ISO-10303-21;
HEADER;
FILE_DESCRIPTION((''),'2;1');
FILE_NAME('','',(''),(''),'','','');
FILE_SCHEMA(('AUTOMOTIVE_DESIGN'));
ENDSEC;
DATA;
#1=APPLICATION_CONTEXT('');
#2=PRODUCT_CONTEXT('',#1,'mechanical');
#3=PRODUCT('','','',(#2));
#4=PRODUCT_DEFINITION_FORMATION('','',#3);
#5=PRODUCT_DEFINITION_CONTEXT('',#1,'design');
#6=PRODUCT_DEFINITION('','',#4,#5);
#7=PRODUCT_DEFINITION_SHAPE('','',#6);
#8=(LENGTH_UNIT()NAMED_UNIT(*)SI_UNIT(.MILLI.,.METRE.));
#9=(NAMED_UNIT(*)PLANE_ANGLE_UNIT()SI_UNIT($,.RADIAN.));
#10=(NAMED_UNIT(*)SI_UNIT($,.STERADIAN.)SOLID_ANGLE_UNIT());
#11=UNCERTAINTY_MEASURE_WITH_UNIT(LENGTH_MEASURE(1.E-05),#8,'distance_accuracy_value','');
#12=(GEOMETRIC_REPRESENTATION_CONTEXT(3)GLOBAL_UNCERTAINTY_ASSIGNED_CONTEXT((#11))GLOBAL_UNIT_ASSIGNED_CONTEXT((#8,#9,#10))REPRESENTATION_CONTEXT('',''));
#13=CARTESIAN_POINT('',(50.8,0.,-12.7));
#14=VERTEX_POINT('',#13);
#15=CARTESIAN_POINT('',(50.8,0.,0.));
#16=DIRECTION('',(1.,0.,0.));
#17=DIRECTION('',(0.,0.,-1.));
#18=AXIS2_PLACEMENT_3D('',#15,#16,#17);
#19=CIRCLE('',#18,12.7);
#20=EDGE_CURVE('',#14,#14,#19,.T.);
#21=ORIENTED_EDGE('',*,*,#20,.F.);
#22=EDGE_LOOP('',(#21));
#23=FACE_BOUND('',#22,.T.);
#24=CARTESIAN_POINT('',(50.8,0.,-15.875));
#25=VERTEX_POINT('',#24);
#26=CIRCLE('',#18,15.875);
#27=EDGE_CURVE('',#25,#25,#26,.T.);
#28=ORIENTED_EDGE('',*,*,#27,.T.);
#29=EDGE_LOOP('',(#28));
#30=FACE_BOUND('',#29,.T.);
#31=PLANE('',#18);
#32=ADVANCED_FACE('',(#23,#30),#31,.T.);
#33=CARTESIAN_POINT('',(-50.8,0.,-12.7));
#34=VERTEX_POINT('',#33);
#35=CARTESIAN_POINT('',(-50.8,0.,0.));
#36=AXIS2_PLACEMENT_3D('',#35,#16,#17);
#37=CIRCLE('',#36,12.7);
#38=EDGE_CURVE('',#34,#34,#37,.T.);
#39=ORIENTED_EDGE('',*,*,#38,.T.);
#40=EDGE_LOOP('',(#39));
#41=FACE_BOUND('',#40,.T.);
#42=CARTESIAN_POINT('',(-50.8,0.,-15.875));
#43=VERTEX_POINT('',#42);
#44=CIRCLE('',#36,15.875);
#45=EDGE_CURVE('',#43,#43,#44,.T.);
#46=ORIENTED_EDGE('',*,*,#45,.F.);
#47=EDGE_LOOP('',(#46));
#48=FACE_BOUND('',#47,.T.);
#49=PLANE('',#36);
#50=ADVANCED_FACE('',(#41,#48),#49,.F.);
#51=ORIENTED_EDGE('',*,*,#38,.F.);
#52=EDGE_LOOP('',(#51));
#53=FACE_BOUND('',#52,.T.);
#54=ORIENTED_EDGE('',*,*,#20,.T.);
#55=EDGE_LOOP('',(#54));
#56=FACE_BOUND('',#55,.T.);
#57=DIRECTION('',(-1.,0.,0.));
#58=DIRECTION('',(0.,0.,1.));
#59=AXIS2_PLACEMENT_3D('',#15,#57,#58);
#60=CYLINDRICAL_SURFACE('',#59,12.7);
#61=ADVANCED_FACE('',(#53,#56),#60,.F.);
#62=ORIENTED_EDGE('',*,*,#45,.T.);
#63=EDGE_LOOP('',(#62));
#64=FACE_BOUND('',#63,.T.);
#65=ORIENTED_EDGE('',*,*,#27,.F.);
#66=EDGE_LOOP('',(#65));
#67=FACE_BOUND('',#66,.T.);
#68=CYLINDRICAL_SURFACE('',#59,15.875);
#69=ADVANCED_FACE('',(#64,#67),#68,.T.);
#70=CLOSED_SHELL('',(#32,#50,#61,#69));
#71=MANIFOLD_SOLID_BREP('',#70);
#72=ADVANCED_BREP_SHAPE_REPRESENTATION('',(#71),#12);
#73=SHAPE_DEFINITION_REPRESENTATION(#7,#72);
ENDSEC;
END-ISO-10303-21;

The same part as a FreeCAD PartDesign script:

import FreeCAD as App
import Part
import Sketcher
Q = App.Units.Quantity

doc = App.newDocument("Part")
body = doc.addObject("PartDesign::Body", "Body")

# Sketch on YZ plane
sketch1 = body.newObject("Sketcher::SketchObject", "Sketch")
sketch1.AttachmentSupport = (doc.getObject("YZ_Plane"), [""])
sketch1.MapMode = "FlatFace"
sketch1.addGeometry([
    Part.Circle(App.Vector(0, 0, 0), App.Vector(0, 0, 1), 15.875),
    Part.Circle(App.Vector(0, 0, 0), App.Vector(0, 0, 1), 12.7),
], False)
sketch1.addConstraint([
    Sketcher.Constraint("Coincident", 0, 3, -1, 1),
    Sketcher.Constraint("Coincident", 1, 3, -1, 1),
    Sketcher.Constraint("Diameter", 1, Q("1 in")),
    Sketcher.Constraint("Diameter", 0, Q("1.25 in")),
])
pad1 = body.newObject("PartDesign::Pad", "Pad")
pad1.Profile = sketch1
pad1.Length = Q("4 in")
pad1.Midplane = True

doc.recompute()
